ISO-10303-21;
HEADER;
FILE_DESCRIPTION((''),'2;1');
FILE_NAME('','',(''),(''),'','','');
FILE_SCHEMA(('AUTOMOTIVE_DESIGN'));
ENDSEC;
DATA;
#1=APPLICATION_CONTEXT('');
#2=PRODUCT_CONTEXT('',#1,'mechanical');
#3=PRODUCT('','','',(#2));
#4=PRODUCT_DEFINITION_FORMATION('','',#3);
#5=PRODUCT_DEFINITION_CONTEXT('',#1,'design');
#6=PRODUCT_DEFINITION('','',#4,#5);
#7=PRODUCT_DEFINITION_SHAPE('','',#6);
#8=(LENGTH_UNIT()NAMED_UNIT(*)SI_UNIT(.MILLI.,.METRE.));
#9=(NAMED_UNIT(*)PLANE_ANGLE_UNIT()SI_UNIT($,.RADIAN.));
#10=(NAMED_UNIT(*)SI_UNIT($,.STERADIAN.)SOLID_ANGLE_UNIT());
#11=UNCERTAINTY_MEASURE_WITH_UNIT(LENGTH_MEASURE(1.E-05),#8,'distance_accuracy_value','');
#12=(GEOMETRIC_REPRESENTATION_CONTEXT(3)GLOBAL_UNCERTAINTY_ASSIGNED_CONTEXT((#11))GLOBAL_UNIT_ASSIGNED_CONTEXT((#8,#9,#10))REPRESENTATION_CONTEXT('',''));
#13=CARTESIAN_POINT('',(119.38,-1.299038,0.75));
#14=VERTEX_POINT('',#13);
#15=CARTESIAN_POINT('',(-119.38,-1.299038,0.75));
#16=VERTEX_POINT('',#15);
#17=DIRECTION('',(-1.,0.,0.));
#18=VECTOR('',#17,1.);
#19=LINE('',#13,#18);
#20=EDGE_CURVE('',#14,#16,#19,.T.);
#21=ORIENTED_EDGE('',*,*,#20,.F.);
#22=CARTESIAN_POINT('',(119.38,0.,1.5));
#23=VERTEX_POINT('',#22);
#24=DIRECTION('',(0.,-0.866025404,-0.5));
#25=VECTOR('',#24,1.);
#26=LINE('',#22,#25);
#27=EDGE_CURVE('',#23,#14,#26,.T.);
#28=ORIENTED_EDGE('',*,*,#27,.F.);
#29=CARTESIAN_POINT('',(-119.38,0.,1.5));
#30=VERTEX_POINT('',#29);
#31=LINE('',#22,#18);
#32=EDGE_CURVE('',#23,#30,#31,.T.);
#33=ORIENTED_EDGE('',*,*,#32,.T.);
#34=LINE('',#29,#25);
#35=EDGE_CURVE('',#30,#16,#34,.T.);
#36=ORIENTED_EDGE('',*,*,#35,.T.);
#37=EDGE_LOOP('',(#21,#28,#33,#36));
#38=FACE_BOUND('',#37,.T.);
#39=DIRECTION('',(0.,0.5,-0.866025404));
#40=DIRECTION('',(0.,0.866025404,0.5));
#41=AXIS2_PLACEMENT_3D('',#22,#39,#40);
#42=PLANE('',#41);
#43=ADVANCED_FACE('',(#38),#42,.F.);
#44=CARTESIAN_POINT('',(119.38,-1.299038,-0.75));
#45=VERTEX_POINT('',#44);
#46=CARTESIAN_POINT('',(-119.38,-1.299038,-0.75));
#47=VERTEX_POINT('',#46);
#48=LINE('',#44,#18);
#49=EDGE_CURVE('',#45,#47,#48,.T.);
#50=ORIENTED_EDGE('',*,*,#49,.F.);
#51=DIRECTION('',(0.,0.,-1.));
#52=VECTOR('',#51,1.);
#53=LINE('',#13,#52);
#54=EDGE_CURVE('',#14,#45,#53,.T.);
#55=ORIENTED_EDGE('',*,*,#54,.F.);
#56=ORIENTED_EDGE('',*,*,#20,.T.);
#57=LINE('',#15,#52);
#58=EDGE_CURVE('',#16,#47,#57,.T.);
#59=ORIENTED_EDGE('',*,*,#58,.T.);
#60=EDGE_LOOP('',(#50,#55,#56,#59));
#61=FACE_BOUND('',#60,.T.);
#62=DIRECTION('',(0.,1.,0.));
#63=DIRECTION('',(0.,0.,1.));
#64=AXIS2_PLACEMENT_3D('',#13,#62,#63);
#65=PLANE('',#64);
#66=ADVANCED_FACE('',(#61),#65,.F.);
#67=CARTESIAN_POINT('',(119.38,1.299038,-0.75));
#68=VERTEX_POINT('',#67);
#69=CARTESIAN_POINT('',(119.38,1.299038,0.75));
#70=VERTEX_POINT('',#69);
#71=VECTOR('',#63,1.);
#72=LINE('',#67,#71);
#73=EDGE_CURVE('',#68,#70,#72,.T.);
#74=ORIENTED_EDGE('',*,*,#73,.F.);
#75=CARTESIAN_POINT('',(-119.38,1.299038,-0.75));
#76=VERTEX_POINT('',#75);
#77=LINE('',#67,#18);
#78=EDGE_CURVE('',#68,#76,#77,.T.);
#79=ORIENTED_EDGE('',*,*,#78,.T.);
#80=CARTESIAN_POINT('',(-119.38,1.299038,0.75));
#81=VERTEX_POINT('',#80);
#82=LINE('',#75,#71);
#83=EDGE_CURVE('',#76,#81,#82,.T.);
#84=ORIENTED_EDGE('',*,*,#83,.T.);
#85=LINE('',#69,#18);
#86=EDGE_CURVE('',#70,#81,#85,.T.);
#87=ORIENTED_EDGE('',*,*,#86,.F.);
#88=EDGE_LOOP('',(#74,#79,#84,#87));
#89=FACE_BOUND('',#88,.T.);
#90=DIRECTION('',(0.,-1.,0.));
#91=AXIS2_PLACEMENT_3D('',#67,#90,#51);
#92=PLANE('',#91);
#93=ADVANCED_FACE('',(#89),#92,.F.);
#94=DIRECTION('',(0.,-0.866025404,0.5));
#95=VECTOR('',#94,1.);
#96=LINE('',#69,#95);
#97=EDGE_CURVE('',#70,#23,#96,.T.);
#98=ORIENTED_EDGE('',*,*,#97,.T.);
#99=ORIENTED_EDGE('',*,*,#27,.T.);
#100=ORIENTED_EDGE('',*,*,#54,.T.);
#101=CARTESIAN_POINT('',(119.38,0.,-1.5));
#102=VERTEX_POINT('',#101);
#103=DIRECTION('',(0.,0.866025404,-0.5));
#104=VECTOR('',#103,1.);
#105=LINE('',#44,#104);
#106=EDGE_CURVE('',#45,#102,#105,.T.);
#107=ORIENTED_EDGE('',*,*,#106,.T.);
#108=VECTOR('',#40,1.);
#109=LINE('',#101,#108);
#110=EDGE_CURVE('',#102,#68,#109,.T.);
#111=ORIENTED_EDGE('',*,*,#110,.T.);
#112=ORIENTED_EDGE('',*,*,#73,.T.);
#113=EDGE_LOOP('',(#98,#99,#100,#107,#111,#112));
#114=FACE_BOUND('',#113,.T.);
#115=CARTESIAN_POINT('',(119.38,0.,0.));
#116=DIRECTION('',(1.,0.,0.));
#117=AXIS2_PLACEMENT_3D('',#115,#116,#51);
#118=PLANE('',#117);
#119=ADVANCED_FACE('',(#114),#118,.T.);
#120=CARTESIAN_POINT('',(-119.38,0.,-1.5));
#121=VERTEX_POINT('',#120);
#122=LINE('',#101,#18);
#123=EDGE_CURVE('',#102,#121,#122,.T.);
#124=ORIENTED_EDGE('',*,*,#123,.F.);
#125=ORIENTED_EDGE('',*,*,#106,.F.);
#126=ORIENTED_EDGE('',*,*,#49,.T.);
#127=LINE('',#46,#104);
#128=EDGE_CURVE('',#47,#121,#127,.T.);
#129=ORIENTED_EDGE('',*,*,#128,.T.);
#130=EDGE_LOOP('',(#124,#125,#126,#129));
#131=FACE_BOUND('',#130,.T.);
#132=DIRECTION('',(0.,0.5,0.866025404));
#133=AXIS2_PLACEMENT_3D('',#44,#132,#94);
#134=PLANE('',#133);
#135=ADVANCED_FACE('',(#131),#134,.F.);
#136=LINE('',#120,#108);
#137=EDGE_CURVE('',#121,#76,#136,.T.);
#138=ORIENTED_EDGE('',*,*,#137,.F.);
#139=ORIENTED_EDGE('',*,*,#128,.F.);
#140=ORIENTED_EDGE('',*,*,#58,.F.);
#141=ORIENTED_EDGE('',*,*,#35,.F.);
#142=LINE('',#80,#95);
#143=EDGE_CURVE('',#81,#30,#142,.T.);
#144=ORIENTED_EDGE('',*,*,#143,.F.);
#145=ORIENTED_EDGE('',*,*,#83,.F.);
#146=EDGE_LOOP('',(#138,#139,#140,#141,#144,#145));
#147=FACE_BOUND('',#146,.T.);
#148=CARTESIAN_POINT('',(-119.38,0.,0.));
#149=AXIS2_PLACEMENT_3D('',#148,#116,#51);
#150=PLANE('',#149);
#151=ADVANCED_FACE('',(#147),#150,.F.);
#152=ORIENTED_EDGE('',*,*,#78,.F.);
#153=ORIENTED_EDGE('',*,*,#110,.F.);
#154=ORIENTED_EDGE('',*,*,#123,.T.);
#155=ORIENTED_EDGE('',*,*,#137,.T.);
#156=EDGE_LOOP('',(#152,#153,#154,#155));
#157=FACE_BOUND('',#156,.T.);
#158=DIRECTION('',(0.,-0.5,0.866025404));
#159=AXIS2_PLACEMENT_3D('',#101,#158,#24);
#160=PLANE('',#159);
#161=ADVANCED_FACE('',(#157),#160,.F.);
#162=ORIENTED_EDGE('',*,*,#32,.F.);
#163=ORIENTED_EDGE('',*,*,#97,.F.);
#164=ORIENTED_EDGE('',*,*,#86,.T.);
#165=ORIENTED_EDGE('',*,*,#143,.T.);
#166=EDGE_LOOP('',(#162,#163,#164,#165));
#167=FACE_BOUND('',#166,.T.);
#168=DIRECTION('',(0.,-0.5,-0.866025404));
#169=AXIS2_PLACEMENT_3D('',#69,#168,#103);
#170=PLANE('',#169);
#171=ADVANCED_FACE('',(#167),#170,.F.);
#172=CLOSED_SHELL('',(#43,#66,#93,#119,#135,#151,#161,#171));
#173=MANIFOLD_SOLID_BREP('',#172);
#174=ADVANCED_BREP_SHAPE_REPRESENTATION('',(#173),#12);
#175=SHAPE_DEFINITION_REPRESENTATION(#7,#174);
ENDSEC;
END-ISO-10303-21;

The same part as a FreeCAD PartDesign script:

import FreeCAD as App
import Part
import Sketcher

V = App.Vector
Q = App.Units.Quantity

doc = App.newDocument("Part")
body = doc.addObject("PartDesign::Body", "Body")

# Sketch on YZ plane
sketch1 = doc.addObject("Sketcher::SketchObject", "Sketch")
body.addObject(sketch1)
sketch1.AttachmentSupport = (doc.YZ_Plane, [""])
sketch1.MapMode = "FlatFace"
sketch1.addGeometry(Part.LineSegment(V(0, -1.5, 0), V(1.3, -0.8, 0)), False)
sketch1.addGeometry(Part.LineSegment(V(1.3, -0.8, 0), V(1.3, 0.8, 0)), False)
sketch1.addGeometry(Part.LineSegment(V(1.3, 0.8, 0), V(0, 1.5, 0)), False)
sketch1.addGeometry(Part.LineSegment(V(0, 1.5, 0), V(-1.3, 0.8, 0)), False)
sketch1.addGeometry(Part.LineSegment(V(-1.3, 0.8, 0), V(-1.3, -0.8, 0)), False)
sketch1.addGeometry(Part.LineSegment(V(-1.3, -0.8, 0), V(0, -1.5, 0)), False)
sketch1.addConstraint(Sketcher.Constraint("Coincident", 0, 2, 1, 1))
sketch1.addConstraint(Sketcher.Constraint("Coincident", 1, 2, 2, 1))
sketch1.addConstraint(Sketcher.Constraint("Coincident", 2, 2, 3, 1))
sketch1.addConstraint(Sketcher.Constraint("Coincident", 3, 2, 4, 1))
sketch1.addConstraint(Sketcher.Constraint("Coincident", 4, 2, 5, 1))
sketch1.addConstraint(Sketcher.Constraint("Coincident", 5, 2, 0, 1))
sketch1.addConstraint(Sketcher.Constraint("Vertical", 1))
sketch1.addConstraint(Sketcher.Constraint("Vertical", 4))
sketch1.addConstraint(Sketcher.Constraint("Symmetric", 0, 2, 3, 2, -1, 1))
sketch1.addConstraint(Sketcher.Constraint("Symmetric", 2, 2, 5, 2, -1, 1))
sketch1.addConstraint(Sketcher.Constraint("PointOnObject", 2, 2, -2))
sketch1.addConstraint(Sketcher.Constraint("Parallel", 2, 5))
sketch1.addConstraint(Sketcher.Constraint("Horizontal", 1, 2, 3, 2))
sketch1.addConstraint(Sketcher.Constraint("Angle", 0, Q("30 deg")))
sketch1.addConstraint(Sketcher.Constraint("DistanceY", 1, 1, 1, 2, Q("1.5 mm")))
sketch1.addConstraint(Sketcher.Constraint("DistanceY", 5, 2, 2, 2, Q("3 mm")))
pad1 = doc.addObject("PartDesign::Pad", "Pad")
body.addObject(pad1)
pad1.Profile = sketch1
pad1.Length = 238.76
pad1.Midplane = True

doc.recompute()
